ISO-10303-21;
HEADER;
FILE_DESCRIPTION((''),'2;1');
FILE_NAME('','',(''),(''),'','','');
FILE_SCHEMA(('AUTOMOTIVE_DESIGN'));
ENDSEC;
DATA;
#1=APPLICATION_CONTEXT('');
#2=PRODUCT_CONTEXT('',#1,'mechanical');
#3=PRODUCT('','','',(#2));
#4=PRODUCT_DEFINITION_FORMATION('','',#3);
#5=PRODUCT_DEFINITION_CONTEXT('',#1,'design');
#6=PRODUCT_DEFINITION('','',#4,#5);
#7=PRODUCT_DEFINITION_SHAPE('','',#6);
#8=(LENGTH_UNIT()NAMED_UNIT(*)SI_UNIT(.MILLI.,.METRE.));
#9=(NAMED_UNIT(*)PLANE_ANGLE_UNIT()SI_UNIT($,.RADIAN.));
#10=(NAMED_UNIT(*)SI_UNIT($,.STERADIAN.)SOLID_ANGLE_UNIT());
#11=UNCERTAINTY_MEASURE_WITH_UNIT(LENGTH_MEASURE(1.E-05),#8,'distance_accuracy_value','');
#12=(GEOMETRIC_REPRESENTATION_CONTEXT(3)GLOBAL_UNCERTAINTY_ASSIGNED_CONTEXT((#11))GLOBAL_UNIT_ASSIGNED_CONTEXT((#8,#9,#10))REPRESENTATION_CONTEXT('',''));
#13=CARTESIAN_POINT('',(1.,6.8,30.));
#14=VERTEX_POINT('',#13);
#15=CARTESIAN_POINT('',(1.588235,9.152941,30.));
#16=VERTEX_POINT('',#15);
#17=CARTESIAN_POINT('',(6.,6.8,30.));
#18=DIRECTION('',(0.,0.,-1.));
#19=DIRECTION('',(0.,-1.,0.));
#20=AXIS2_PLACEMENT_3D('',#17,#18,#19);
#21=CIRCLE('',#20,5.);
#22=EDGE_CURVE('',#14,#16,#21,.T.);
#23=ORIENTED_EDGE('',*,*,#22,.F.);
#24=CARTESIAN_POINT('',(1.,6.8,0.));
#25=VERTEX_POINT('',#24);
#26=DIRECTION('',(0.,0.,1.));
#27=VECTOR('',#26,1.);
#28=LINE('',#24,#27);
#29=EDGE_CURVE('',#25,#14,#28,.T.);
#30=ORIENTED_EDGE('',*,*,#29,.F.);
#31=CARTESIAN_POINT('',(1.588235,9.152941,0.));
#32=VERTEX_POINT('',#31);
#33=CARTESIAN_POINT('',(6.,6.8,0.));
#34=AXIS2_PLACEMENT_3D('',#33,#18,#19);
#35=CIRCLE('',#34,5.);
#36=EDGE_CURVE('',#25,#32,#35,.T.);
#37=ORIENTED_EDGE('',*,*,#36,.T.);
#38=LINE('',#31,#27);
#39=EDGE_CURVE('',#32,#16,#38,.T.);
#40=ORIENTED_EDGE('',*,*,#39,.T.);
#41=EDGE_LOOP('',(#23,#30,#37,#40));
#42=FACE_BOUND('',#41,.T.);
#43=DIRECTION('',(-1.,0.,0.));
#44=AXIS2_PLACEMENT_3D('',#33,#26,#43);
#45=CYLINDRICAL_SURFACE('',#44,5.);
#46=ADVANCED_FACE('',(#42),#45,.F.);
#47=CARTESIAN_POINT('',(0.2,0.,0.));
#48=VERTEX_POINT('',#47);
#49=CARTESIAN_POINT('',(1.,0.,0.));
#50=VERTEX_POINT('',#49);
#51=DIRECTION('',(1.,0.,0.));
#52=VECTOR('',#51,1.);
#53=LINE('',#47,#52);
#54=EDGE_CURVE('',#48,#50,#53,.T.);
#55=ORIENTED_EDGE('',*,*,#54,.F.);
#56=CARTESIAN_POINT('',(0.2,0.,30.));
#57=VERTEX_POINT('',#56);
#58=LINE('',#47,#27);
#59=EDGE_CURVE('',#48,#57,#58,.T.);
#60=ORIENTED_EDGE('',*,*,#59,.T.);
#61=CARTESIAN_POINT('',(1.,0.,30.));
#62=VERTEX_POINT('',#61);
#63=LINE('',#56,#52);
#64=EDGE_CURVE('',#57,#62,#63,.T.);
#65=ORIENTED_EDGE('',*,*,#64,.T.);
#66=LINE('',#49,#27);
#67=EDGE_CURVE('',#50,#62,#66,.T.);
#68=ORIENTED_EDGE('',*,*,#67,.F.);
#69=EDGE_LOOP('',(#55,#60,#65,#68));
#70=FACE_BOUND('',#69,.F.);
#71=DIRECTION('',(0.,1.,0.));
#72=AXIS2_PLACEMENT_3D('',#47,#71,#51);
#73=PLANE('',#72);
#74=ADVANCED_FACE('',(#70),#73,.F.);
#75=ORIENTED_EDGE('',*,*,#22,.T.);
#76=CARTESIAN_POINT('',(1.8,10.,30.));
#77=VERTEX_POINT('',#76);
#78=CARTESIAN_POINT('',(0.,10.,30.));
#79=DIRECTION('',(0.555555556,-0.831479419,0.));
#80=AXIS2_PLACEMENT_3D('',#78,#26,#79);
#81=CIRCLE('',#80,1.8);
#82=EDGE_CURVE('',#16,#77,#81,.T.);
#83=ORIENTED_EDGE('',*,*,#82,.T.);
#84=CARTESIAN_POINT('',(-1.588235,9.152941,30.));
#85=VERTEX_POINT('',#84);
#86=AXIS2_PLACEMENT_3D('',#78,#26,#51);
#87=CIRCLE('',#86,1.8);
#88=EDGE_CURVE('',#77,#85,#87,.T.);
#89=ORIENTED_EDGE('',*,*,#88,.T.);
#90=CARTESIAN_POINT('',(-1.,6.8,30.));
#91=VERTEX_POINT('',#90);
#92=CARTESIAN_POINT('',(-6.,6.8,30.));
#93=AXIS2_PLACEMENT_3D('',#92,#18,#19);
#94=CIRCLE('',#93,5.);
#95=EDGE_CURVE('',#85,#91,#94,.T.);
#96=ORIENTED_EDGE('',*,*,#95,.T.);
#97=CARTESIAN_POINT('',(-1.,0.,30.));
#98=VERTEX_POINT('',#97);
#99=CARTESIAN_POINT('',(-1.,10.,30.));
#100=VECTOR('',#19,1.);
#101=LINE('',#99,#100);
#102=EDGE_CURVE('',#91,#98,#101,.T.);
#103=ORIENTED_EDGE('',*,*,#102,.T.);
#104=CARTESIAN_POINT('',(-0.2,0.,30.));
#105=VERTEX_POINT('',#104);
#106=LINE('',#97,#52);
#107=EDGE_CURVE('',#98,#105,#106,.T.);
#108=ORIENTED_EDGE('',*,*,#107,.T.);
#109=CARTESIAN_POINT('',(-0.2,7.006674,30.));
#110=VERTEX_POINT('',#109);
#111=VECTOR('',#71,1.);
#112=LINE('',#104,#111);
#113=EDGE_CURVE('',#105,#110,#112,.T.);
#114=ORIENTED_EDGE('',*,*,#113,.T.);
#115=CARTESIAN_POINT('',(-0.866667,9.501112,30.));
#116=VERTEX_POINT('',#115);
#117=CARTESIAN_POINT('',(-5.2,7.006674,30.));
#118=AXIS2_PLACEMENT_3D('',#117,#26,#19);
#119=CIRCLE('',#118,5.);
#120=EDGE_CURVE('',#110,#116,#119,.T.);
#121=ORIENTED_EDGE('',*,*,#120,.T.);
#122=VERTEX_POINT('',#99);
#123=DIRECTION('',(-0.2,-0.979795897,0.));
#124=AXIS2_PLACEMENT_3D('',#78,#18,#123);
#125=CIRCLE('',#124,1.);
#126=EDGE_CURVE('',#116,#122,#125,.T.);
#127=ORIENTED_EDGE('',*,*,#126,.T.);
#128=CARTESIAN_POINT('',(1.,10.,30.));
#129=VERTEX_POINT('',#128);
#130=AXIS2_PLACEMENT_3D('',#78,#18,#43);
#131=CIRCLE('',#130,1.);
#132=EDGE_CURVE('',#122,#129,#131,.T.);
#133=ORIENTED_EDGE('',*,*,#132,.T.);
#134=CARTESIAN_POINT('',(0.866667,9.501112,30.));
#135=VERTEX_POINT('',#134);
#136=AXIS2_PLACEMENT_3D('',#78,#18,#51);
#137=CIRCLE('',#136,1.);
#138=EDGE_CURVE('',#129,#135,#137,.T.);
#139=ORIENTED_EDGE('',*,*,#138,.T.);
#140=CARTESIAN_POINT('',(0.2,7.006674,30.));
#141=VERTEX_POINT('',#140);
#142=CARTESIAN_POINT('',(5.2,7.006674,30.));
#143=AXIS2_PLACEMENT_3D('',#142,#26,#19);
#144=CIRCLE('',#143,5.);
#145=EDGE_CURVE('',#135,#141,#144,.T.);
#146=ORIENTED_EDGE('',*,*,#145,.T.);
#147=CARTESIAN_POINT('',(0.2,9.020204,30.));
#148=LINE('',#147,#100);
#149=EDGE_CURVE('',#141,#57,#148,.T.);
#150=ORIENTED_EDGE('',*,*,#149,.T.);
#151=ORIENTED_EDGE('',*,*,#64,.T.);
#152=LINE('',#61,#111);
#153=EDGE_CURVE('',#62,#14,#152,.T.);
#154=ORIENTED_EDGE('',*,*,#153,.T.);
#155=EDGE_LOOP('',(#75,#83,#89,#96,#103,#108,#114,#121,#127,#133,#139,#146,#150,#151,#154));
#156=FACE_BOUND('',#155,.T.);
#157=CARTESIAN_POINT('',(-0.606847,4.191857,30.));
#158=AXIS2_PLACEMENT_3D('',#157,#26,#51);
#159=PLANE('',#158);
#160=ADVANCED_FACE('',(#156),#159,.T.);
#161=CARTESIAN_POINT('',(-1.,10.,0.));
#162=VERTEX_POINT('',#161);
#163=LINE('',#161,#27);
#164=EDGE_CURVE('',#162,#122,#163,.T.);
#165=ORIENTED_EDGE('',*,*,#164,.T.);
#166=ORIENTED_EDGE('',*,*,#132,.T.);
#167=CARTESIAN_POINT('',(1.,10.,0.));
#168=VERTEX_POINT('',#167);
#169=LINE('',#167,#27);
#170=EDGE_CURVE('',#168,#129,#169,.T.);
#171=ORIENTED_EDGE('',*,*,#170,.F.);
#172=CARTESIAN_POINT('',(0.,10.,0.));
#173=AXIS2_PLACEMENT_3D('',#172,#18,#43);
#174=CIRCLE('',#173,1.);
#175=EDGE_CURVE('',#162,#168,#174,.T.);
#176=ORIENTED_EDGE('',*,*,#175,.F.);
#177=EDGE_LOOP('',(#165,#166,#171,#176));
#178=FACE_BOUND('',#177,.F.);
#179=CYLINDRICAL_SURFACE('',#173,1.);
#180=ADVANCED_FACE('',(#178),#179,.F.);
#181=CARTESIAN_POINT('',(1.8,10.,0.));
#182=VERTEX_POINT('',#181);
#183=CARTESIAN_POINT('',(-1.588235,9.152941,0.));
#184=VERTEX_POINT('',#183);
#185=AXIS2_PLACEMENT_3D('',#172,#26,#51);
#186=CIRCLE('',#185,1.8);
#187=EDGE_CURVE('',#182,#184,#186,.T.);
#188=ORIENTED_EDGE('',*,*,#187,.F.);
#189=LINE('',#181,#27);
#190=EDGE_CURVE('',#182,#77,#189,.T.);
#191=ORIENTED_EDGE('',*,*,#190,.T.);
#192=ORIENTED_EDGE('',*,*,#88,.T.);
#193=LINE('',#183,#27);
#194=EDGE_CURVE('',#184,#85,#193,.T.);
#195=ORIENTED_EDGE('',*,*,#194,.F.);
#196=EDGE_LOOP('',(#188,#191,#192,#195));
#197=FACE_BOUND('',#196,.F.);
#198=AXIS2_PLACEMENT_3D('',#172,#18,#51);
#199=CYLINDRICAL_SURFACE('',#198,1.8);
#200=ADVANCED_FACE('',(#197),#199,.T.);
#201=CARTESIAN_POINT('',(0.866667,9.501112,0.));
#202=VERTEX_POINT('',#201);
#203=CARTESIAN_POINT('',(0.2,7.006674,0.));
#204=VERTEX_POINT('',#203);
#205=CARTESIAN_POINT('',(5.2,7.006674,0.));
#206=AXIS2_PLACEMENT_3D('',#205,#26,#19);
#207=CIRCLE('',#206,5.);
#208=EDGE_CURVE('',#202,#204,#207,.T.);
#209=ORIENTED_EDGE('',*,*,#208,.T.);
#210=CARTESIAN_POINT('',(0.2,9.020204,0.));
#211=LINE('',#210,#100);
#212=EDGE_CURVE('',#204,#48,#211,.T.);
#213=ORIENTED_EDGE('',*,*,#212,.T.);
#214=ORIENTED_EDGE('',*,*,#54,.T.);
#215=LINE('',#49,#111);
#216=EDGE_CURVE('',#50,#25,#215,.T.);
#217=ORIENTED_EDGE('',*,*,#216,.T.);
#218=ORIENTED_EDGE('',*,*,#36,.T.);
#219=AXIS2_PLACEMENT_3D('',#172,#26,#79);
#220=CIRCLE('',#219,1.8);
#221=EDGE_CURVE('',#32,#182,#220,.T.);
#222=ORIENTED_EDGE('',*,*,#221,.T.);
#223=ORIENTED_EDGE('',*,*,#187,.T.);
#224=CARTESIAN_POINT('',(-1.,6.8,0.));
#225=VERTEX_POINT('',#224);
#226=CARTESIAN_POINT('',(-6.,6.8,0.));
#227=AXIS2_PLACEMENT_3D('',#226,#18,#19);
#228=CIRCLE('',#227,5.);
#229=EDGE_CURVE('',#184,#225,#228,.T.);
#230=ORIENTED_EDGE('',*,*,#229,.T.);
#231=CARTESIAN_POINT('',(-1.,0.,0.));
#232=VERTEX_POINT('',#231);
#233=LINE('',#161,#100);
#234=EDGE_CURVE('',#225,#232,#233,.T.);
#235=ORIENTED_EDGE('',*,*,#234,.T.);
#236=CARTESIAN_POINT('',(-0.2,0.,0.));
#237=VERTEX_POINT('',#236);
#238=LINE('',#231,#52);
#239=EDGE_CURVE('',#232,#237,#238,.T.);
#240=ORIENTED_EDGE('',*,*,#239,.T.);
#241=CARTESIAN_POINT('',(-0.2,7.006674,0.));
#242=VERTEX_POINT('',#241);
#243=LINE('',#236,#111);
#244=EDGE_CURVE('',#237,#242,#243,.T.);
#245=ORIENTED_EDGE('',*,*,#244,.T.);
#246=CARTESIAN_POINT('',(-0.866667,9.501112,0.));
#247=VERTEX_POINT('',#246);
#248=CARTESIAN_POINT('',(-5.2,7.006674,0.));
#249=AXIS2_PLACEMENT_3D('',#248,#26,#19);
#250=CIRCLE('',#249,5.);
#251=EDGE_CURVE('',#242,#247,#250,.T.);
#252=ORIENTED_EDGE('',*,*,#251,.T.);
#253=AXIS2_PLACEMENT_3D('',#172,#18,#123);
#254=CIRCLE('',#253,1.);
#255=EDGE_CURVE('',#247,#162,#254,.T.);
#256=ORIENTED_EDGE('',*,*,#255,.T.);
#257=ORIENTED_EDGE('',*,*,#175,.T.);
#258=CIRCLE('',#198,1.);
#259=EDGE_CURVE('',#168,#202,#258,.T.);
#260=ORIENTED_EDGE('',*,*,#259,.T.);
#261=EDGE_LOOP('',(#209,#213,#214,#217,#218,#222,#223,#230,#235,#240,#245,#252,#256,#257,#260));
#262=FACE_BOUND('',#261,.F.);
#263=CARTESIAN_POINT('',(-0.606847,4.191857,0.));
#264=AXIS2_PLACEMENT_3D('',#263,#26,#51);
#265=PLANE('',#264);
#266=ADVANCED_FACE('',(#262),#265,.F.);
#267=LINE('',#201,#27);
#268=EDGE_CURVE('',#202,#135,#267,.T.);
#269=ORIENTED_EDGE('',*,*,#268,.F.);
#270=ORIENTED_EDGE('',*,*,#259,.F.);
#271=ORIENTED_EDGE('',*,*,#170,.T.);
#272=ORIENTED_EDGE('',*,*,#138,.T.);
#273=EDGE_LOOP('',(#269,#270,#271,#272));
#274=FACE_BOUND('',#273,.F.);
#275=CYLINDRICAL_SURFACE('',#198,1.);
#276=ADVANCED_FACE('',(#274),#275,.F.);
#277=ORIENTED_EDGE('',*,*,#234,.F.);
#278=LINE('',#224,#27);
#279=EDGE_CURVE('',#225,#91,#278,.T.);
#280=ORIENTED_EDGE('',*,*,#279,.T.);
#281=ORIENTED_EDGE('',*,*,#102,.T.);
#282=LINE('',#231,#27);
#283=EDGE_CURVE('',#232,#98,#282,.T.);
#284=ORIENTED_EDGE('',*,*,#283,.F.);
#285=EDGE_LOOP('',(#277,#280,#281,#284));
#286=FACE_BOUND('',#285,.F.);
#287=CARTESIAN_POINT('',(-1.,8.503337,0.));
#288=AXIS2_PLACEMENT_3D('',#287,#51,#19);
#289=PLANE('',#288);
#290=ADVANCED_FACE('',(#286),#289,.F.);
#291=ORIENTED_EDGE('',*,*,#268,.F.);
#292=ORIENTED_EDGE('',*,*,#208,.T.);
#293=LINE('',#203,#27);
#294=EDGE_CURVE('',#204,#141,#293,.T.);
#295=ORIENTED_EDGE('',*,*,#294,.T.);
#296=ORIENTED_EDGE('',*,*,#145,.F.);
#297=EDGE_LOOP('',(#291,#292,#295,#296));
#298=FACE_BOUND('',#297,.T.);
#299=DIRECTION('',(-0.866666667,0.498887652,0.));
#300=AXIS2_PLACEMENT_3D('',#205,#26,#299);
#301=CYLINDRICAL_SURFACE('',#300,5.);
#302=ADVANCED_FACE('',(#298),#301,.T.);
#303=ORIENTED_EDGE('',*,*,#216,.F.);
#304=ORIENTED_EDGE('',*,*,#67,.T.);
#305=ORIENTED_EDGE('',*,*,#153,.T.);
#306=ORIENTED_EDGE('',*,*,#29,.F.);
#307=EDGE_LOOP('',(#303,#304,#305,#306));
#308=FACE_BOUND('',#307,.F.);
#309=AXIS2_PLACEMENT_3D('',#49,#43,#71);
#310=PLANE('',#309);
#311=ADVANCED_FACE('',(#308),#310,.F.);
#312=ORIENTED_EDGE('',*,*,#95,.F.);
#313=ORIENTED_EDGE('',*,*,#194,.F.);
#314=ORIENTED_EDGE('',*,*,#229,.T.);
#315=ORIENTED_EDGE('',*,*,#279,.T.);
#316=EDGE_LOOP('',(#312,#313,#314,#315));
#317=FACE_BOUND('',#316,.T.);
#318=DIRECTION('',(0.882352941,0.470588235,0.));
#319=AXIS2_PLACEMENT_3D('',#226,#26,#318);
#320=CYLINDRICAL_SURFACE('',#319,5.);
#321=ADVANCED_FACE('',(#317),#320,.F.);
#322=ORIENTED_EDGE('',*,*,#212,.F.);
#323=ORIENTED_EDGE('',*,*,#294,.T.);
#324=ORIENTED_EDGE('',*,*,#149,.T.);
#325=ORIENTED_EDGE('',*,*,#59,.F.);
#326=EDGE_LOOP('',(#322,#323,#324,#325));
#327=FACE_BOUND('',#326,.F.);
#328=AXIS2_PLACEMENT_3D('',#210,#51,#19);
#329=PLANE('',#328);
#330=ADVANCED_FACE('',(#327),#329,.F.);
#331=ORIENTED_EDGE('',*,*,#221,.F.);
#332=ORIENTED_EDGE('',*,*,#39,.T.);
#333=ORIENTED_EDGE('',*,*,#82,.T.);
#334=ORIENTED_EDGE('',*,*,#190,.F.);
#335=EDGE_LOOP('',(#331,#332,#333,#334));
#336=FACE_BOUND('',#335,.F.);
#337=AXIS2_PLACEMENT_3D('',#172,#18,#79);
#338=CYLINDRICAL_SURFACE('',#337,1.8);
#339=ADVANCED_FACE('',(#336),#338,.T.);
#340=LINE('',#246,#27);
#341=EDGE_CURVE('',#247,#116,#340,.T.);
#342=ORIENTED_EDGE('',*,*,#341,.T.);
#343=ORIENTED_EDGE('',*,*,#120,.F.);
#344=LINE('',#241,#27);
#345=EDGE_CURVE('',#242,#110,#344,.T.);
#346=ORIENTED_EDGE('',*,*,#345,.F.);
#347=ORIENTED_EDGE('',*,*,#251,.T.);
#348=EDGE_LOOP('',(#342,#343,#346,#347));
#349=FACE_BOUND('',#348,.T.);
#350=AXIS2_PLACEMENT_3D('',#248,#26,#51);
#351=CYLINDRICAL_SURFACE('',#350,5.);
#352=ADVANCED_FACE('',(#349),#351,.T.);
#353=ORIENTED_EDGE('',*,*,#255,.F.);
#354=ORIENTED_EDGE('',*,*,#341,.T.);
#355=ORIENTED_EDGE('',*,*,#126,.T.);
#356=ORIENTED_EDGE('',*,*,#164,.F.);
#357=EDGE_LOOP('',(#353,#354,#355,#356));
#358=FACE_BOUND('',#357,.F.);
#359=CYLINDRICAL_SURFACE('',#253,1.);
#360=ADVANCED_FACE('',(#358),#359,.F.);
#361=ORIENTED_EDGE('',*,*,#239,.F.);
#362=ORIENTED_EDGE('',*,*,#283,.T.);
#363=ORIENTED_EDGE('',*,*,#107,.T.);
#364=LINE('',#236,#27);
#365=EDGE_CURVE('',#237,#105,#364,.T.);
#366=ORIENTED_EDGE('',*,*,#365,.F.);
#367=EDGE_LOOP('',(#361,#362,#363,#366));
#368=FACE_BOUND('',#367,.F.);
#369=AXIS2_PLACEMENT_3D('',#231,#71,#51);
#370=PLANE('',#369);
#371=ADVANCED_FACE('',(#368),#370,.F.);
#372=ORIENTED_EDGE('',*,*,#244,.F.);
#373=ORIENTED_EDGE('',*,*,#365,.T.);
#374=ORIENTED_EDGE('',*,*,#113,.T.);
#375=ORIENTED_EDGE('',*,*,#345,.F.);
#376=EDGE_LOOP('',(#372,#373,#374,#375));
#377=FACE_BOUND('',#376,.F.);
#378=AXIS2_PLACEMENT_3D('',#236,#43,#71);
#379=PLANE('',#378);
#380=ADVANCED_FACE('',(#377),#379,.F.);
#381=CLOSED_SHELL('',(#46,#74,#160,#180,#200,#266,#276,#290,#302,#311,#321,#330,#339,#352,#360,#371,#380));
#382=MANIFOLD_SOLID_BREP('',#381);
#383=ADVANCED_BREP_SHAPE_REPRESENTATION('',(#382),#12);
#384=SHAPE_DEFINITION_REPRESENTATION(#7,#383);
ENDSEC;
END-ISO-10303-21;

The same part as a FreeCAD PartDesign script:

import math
import FreeCAD as App
import Part
import Sketcher
Q = App.Units.Quantity


def edges_at(feature, points):
    """Names of the edges that pass closest to the given points."""
    edges = feature.Shape.Edges
    near = lambda p: min(range(len(edges)), key=lambda i: edges[i].distToShape(Part.Vertex(*p))[0])
    return sorted({f"Edge{near(p) + 1}" for p in points})

doc = App.newDocument("Part")
body = doc.addObject("PartDesign::Body", "Body")

# Sketch on XY plane
sketch1 = body.newObject("Sketcher::SketchObject", "Sketch")
sketch1.AttachmentSupport = (doc.getObject("XY_Plane"), [""])
sketch1.MapMode = "FlatFace"
sketch1.addGeometry([
    Part.LineSegment(App.Vector(-1, 0, 0), App.Vector(-0.2, 0, 0)),  # 0
    Part.LineSegment(App.Vector(-0.2, 0, 0), App.Vector(-0.2, 9.020204, 0)),  # 1
    Part.ArcOfCircle(Part.Circle(App.Vector(0, 10, 0), App.Vector(0, 0, 1), 1), math.radians(180), math.radians(258.463041)),  # 2
    Part.ArcOfCircle(Part.Circle(App.Vector(0, 10, 0), App.Vector(0, 0, 1), 1), math.radians(0), math.radians(180)),  # 3
    Part.ArcOfCircle(Part.Circle(App.Vector(0, 10, 0), App.Vector(0, 0, 1), 1), math.radians(-78.463041), math.radians(0)),  # 4
    Part.LineSegment(App.Vector(0.2, 9.020204, 0), App.Vector(0.2, 0, 0)),  # 5
    Part.LineSegment(App.Vector(0.2, 0, 0), App.Vector(1, 0, 0)),  # 6
    Part.LineSegment(App.Vector(1, 0, 0), App.Vector(1, 8.503337, 0)),  # 7
    Part.ArcOfCircle(Part.Circle(App.Vector(0, 10, 0), App.Vector(0, 0, 1), 1.8), math.radians(-56.251011), math.radians(0)),  # 8
    Part.ArcOfCircle(Part.Circle(App.Vector(0, 10, 0), App.Vector(0, 0, 1), 1.8), math.radians(0), math.radians(236.251011)),  # 9
    Part.LineSegment(App.Vector(-1, 8.503337, 0), App.Vector(-1, 0, 0)),  # 10
], False)
sketch1.addConstraint([
    Sketcher.Constraint("Coincident", 0, 2, 1, 1),
    Sketcher.Constraint("Coincident", 1, 2, 2, 2),
    Sketcher.Constraint("Tangent", 2, 1, 3, 2),
    Sketcher.Constraint("Tangent", 3, 1, 4, 2),
    Sketcher.Constraint("Coincident", 4, 1, 5, 1),
    Sketcher.Constraint("Coincident", 5, 2, 6, 1),
    Sketcher.Constraint("Coincident", 6, 2, 7, 1),
    Sketcher.Constraint("Coincident", 7, 2, 8, 1),
    Sketcher.Constraint("Tangent", 8, 2, 9, 1),
    Sketcher.Constraint("Coincident", 9, 2, 10, 1),
    Sketcher.Constraint("Coincident", 10, 2, 0, 1),
    Sketcher.Constraint("Horizontal", 0),
    Sketcher.Constraint("Vertical", 1),
    Sketcher.Constraint("Vertical", 5),
    Sketcher.Constraint("Horizontal", 6),
    Sketcher.Constraint("Vertical", 7),
    Sketcher.Constraint("Vertical", 10),
    Sketcher.Constraint("Coincident", 8, 3, 2, 3),
    Sketcher.Constraint("Equal", 2, 3),
    Sketcher.Constraint("Equal", 3, 4),
    Sketcher.Constraint("Equal", 8, 9),
    Sketcher.Constraint("Symmetric", 0, 2, 5, 2, -1, 1),
    Sketcher.Constraint("Symmetric", 2, 1, 3, 1, -2),
    Sketcher.Constraint("Symmetric", 6, 2, 10, 2, -2),
    Sketcher.Constraint("Horizontal", 9, 3, 2, 1),
    Sketcher.Constraint("Horizontal", 3, 1, 8, 2),
    Sketcher.Constraint("Vertical", 3, 1, 6, 2),
    Sketcher.Constraint("Radius", 2, Q("1 mm")),
    Sketcher.Constraint("Radius", 8, Q("1.8 mm")),
    Sketcher.Constraint("DistanceX", 0, 1, 0, 2, Q("0.8 mm")),
    Sketcher.Constraint("DistanceY", -1, 1, 2, 3, Q("10 mm")),
])
pad1 = body.newObject("PartDesign::Pad", "Pad")
pad1.Profile = sketch1
pad1.Length = 30
doc.recompute()

fillet = body.newObject("PartDesign::Fillet", "Fillet")
fillet.Base = (pad1, edges_at(pad1, [
    (-0.2, 9.02, 15),
    (0.2, 9.02, 15),
    (-1, 8.503, 15),
    (1, 8.503, 15),
]))
fillet.Radius = 5

doc.recompute()
